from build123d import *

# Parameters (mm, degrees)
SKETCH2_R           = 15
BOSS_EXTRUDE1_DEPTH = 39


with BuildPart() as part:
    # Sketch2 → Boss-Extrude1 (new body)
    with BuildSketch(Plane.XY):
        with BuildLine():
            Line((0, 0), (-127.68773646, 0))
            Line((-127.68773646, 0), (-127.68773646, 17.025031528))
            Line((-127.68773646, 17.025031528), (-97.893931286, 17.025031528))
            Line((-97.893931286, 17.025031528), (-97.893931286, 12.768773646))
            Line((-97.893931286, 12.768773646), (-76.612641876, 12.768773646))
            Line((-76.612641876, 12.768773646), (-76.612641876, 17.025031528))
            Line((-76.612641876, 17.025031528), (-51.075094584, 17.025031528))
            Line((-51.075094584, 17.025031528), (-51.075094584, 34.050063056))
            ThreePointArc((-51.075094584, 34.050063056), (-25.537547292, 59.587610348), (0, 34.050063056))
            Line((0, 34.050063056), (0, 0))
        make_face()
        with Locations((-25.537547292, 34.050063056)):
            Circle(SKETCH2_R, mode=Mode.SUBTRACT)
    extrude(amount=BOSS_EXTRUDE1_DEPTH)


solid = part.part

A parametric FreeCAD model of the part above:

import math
import FreeCAD as App
import Part
import Sketcher
from FreeCAD import Vector

doc = App.newDocument("Part")
params = doc.addObject("Spreadsheet::Sheet", "Params")
for row, (alias, value) in enumerate([
    ("sketch1_diameter", "30 mm"),
    ("pad1_length", "39 mm"),
], start=1):
    params.set(f"A{row}", alias)
    params.set(f"B{row}", "=" + value)
    params.setAlias(f"B{row}", alias)

body = doc.addObject("PartDesign::Body", "Body")

sketch1 = doc.addObject("Sketcher::SketchObject", "Sketch")
body.addObject(sketch1)
sketch1.AttachmentSupport = (doc.XY_Plane, [""])
sketch1.MapMode = "FlatFace"
sketch1.addGeometry([
    Part.LineSegment(Vector(-127.687736, 0, 0), Vector(0, 0, 0)),
    Part.LineSegment(Vector(0, 0, 0), Vector(0, 34.050063, 0)),
    Part.ArcOfCircle(Part.Circle(Vector(-25.537547, 34.050063, 0), Vector(0, 0, 1), 25.537547), math.radians(0), math.radians(180)),
    Part.LineSegment(Vector(-51.075095, 34.050063, 0), Vector(-51.075095, 17.025032, 0)),
    Part.LineSegment(Vector(-51.075095, 17.025032, 0), Vector(-76.612642, 17.025032, 0)),
    Part.LineSegment(Vector(-76.612642, 17.025032, 0), Vector(-76.612642, 12.768774, 0)),
    Part.LineSegment(Vector(-76.612642, 12.768774, 0), Vector(-97.893931, 12.768774, 0)),
    Part.LineSegment(Vector(-97.893931, 12.768774, 0), Vector(-97.893931, 17.025032, 0)),
    Part.LineSegment(Vector(-97.893931, 17.025032, 0), Vector(-127.687736, 17.025032, 0)),
    Part.LineSegment(Vector(-127.687736, 17.025032, 0), Vector(-127.687736, 0, 0)),
    Part.Circle(Vector(-25.537547, 34.050063, 0), Vector(0, 0, 1), 15),
], False)
sketch1.addConstraint([
    Sketcher.Constraint("Coincident", 0, 2, 1, 1),
    Sketcher.Constraint("Tangent", 1, 2, 2, 1),
    Sketcher.Constraint("Tangent", 2, 2, 3, 1),
    Sketcher.Constraint("Coincident", 3, 2, 4, 1),
    Sketcher.Constraint("Coincident", 4, 2, 5, 1),
    Sketcher.Constraint("Coincident", 5, 2, 6, 1),
    Sketcher.Constraint("Coincident", 6, 2, 7, 1),
    Sketcher.Constraint("Coincident", 7, 2, 8, 1),
    Sketcher.Constraint("Coincident", 8, 2, 9, 1),
    Sketcher.Constraint("Coincident", 9, 2, 0, 1),
    Sketcher.Constraint("Horizontal", 0),
    Sketcher.Constraint("Vertical", 1),
    Sketcher.Constraint("Vertical", 3),
    Sketcher.Constraint("Horizontal", 4),
    Sketcher.Constraint("Vertical", 5),
    Sketcher.Constraint("Horizontal", 6),
    Sketcher.Constraint("Vertical", 7),
    Sketcher.Constraint("Horizontal", 8),
    Sketcher.Constraint("Vertical", 9),
    Sketcher.Constraint("Coincident", 0, 2, -1, 1),
    Sketcher.Constraint("Coincident", 10, 3, 2, 3),
    Sketcher.Constraint("Horizontal", 4, 2, 7, 2),
    Sketcher.Constraint("Equal", 3, 9),
    Sketcher.Constraint("Diameter", 10, 30.0),
    Sketcher.Constraint("Radius", 2, 25.537547),
    Sketcher.Constraint("DistanceX", 6, 2, 6, 1, 21.281289),
    Sketcher.Constraint("DistanceY", 3, 2, 3, 1, 17.025032),
    Sketcher.Constraint("DistanceX", 0, 1, 0, 2, 127.687736),
    Sketcher.Constraint("DistanceX", 4, 2, 4, 1, 25.537547),
    Sketcher.Constraint("DistanceY", 5, 2, 5, 1, 4.256258),
])
sketch1.setExpression("Constraints[23]", "Params.sketch1_diameter")
pad1 = doc.addObject("PartDesign::Pad", "Pad")
body.addObject(pad1)
pad1.Profile = sketch1
pad1.setExpression("Length", "Params.pad1_length")

doc.recompute()
